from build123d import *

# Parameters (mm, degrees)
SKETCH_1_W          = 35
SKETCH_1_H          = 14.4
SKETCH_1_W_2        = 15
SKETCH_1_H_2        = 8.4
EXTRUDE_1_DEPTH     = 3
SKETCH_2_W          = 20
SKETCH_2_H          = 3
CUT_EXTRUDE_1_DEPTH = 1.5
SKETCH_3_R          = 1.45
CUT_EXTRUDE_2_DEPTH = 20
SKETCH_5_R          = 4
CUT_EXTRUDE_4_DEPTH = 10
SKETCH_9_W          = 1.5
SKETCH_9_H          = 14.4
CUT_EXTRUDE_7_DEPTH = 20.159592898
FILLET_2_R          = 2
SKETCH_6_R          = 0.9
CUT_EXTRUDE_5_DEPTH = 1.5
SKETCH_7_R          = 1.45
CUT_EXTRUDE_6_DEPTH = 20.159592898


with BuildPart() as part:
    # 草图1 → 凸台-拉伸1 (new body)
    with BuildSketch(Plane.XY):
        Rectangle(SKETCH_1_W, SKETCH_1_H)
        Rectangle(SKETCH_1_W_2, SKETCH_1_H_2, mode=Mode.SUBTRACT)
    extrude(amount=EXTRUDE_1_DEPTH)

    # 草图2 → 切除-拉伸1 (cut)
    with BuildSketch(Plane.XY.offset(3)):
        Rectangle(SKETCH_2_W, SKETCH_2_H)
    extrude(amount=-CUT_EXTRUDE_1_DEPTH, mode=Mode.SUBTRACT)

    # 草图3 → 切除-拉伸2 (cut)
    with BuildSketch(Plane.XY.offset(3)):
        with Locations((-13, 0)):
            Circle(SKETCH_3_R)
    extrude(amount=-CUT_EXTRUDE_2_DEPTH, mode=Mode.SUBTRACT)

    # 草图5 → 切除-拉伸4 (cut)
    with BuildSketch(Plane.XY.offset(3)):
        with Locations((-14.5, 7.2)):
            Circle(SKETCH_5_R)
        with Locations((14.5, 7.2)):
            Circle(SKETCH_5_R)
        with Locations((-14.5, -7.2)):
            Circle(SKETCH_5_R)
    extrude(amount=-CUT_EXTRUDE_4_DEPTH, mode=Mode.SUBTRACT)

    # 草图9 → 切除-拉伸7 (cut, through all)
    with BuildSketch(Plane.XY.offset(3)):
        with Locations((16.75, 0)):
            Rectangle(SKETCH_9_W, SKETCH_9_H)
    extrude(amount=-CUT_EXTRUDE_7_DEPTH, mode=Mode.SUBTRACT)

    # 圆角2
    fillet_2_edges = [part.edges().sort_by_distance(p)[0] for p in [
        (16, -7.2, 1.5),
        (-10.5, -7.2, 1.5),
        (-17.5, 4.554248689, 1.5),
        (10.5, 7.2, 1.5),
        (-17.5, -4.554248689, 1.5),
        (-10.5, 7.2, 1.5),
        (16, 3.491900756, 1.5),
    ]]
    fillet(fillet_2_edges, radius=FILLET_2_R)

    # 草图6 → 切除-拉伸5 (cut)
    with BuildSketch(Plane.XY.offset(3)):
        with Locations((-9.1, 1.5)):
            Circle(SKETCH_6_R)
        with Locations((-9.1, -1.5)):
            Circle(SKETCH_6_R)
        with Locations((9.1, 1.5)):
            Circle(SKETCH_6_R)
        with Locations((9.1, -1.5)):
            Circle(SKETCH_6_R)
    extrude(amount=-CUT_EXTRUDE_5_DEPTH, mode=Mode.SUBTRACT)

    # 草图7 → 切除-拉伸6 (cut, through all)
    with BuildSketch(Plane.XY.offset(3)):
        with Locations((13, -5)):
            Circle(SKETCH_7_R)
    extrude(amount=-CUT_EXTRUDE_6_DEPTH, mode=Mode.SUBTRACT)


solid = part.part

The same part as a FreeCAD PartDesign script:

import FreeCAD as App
import Part
import Sketcher


def edges_at(feature, points):
    """Names of the edges that pass closest to the given points."""
    edges = feature.Shape.Edges
    near = lambda p: min(range(len(edges)), key=lambda i: edges[i].distToShape(Part.Vertex(*p))[0])
    return sorted({f"Edge{near(p) + 1}" for p in points})

doc = App.newDocument("Part")
body = doc.addObject("PartDesign::Body", "Body")

# Sketch on XY plane
sketch1 = body.newObject("Sketcher::SketchObject", "Sketch")
sketch1.AttachmentSupport = (doc.getObject("XY_Plane"), [""])
sketch1.MapMode = "FlatFace"
sketch1.addGeometry(Part.LineSegment(App.Vector(-17.5, 7.2, 0), App.Vector(-17.5, -7.2, 0)), False)
sketch1.addGeometry(Part.LineSegment(App.Vector(-17.5, -7.2, 0), App.Vector(17.5, -7.2, 0)), False)
sketch1.addGeometry(Part.LineSegment(App.Vector(17.5, -7.2, 0), App.Vector(17.5, 7.2, 0)), False)
sketch1.addGeometry(Part.LineSegment(App.Vector(17.5, 7.2, 0), App.Vector(-17.5, 7.2, 0)), False)
sketch1.addGeometry(Part.LineSegment(App.Vector(7.5, -4.2, 0), App.Vector(-7.5, -4.2, 0)), False)
sketch1.addGeometry(Part.LineSegment(App.Vector(-7.5, -4.2, 0), App.Vector(-7.5, 4.2, 0)), False)
sketch1.addGeometry(Part.LineSegment(App.Vector(-7.5, 4.2, 0), App.Vector(7.5, 4.2, 0)), False)
sketch1.addGeometry(Part.LineSegment(App.Vector(7.5, 4.2, 0), App.Vector(7.5, -4.2, 0)), False)
sketch1.addConstraint(Sketcher.Constraint("Coincident", 0, 2, 1, 1))
sketch1.addConstraint(Sketcher.Constraint("Coincident", 1, 2, 2, 1))
sketch1.addConstraint(Sketcher.Constraint("Coincident", 2, 2, 3, 1))
sketch1.addConstraint(Sketcher.Constraint("Coincident", 3, 2, 0, 1))
sketch1.addConstraint(Sketcher.Constraint("Coincident", 4, 2, 5, 1))
sketch1.addConstraint(Sketcher.Constraint("Coincident", 5, 2, 6, 1))
sketch1.addConstraint(Sketcher.Constraint("Coincident", 6, 2, 7, 1))
sketch1.addConstraint(Sketcher.Constraint("Coincident", 7, 2, 4, 1))
sketch1.addConstraint(Sketcher.Constraint("Vertical", 0))
sketch1.addConstraint(Sketcher.Constraint("Horizontal", 1))
sketch1.addConstraint(Sketcher.Constraint("Vertical", 2))
sketch1.addConstraint(Sketcher.Constraint("Horizontal", 3))
sketch1.addConstraint(Sketcher.Constraint("Horizontal", 4))
sketch1.addConstraint(Sketcher.Constraint("Vertical", 5))
sketch1.addConstraint(Sketcher.Constraint("Horizontal", 6))
sketch1.addConstraint(Sketcher.Constraint("Vertical", 7))
sketch1.addConstraint(Sketcher.Constraint("Symmetric", 0, 2, 2, 2, -1, 1))
sketch1.addConstraint(Sketcher.Constraint("Symmetric", 4, 2, 6, 2, -1, 1))
sketch1.addConstraint(Sketcher.Constraint("DistanceX", 1, 1, 1, 2, 35.0))
sketch1.addConstraint(Sketcher.Constraint("DistanceX", 4, 2, 4, 1, 15.0))
sketch1.addConstraint(Sketcher.Constraint("DistanceY", 0, 2, 0, 1, 14.4))
sketch1.addConstraint(Sketcher.Constraint("DistanceY", 5, 1, 5, 2, 8.4))
pad1 = body.newObject("PartDesign::Pad", "Pad")
pad1.Profile = sketch1
pad1.Length = 3

# Sketch on XY plane
sketch2 = body.newObject("Sketcher::SketchObject", "Sketch001")
sketch2.AttachmentSupport = (doc.getObject("XY_Plane"), [""])
sketch2.MapMode = "FlatFace"
sketch2.AttachmentOffset = App.Placement(App.Vector(0, 0, 3), App.Rotation())
sketch2.addGeometry(Part.LineSegment(App.Vector(-10, 1.5, 0), App.Vector(-10, -1.5, 0)), False)
sketch2.addGeometry(Part.LineSegment(App.Vector(-10, -1.5, 0), App.Vector(10, -1.5, 0)), False)
sketch2.addGeometry(Part.LineSegment(App.Vector(10, -1.5, 0), App.Vector(10, 1.5, 0)), False)
sketch2.addGeometry(Part.LineSegment(App.Vector(10, 1.5, 0), App.Vector(-10, 1.5, 0)), False)
sketch2.addConstraint(Sketcher.Constraint("Coincident", 0, 2, 1, 1))
sketch2.addConstraint(Sketcher.Constraint("Coincident", 1, 2, 2, 1))
sketch2.addConstraint(Sketcher.Constraint("Coincident", 2, 2, 3, 1))
sketch2.addConstraint(Sketcher.Constraint("Coincident", 3, 2, 0, 1))
sketch2.addConstraint(Sketcher.Constraint("Vertical", 0))
sketch2.addConstraint(Sketcher.Constraint("Horizontal", 1))
sketch2.addConstraint(Sketcher.Constraint("Vertical", 2))
sketch2.addConstraint(Sketcher.Constraint("Horizontal", 3))
sketch2.addConstraint(Sketcher.Constraint("Symmetric", 0, 2, 2, 2, -1, 1))
sketch2.addConstraint(Sketcher.Constraint("DistanceX", 1, 1, 1, 2, 20.0))
sketch2.addConstraint(Sketcher.Constraint("DistanceY", 0, 2, 0, 1, 3.0))
pocket1 = body.newObject("PartDesign::Pocket", "Pocket")
pocket1.Profile = sketch2
pocket1.Length = 1.5

# Sketch on XY plane
sketch3 = body.newObject("Sketcher::SketchObject", "Sketch002")
sketch3.AttachmentSupport = (doc.getObject("XY_Plane"), [""])
sketch3.MapMode = "FlatFace"
sketch3.AttachmentOffset = App.Placement(App.Vector(0, 0, 3), App.Rotation())
sketch3.addGeometry(Part.Circle(App.Vector(-13, 0, 0), App.Vector(0, 0, 1), 1.45), False)
sketch3.addConstraint(Sketcher.Constraint("PointOnObject", 0, 3, -1))
sketch3.addConstraint(Sketcher.Constraint("Diameter", 0, 2.9))
sketch3.addConstraint(Sketcher.Constraint("DistanceX", 0, 3, -1, 1, 13.0))
pocket2 = body.newObject("PartDesign::Pocket", "Pocket001")
pocket2.Profile = sketch3
pocket2.Length = 20

# Sketch on XY plane
sketch4 = body.newObject("Sketcher::SketchObject", "Sketch003")
sketch4.AttachmentSupport = (doc.getObject("XY_Plane"), [""])
sketch4.MapMode = "FlatFace"
sketch4.AttachmentOffset = App.Placement(App.Vector(0, 0, 3), App.Rotation())
sketch4.addGeometry(Part.Circle(App.Vector(-14.5, 7.2, 0), App.Vector(0, 0, 1), 4), False)
sketch4.addGeometry(Part.Circle(App.Vector(14.5, 7.2, 0), App.Vector(0, 0, 1), 4), False)
sketch4.addGeometry(Part.Circle(App.Vector(-14.5, -7.2, 0), App.Vector(0, 0, 1), 4), False)
sketch4.addConstraint(Sketcher.Constraint("Equal", 0, 1))
sketch4.addConstraint(Sketcher.Constraint("Equal", 1, 2))
sketch4.addConstraint(Sketcher.Constraint("Symmetric", 1, 3, 2, 3, -1, 1))
sketch4.addConstraint(Sketcher.Constraint("Symmetric", 0, 3, 1, 3, -2))
sketch4.addConstraint(Sketcher.Constraint("Diameter", 0, 8.0))
sketch4.addConstraint(Sketcher.Constraint("DistanceX", 0, 3, 1, 3, 29.0))
sketch4.addConstraint(Sketcher.Constraint("DistanceY", -1, 1, 0, 3, 7.2))
pocket3 = body.newObject("PartDesign::Pocket", "Pocket002")
pocket3.Profile = sketch4
pocket3.Length = 10

# Sketch on XY plane
sketch5 = body.newObject("Sketcher::SketchObject", "Sketch004")
sketch5.AttachmentSupport = (doc.getObject("XY_Plane"), [""])
sketch5.MapMode = "FlatFace"
sketch5.AttachmentOffset = App.Placement(App.Vector(0, 0, 3), App.Rotation())
sketch5.addGeometry(Part.LineSegment(App.Vector(16, 7.2, 0), App.Vector(16, -7.2, 0)), False)
sketch5.addGeometry(Part.LineSegment(App.Vector(16, -7.2, 0), App.Vector(17.5, -7.2, 0)), False)
sketch5.addGeometry(Part.LineSegment(App.Vector(17.5, -7.2, 0), App.Vector(17.5, 7.2, 0)), False)
sketch5.addGeometry(Part.LineSegment(App.Vector(17.5, 7.2, 0), App.Vector(16, 7.2, 0)), False)
sketch5.addConstraint(Sketcher.Constraint("Coincident", 0, 2, 1, 1))
sketch5.addConstraint(Sketcher.Constraint("Coincident", 1, 2, 2, 1))
sketch5.addConstraint(Sketcher.Constraint("Coincident", 2, 2, 3, 1))
sketch5.addConstraint(Sketcher.Constraint("Coincident", 3, 2, 0, 1))
sketch5.addConstraint(Sketcher.Constraint("Vertical", 0))
sketch5.addConstraint(Sketcher.Constraint("Horizontal", 1))
sketch5.addConstraint(Sketcher.Constraint("Vertical", 2))
sketch5.addConstraint(Sketcher.Constraint("Horizontal", 3))
sketch5.addConstraint(Sketcher.Constraint("DistanceX", 1, 1, 1, 2, 1.5))
sketch5.addConstraint(Sketcher.Constraint("DistanceY", 0, 2, 0, 1, 14.4))
sketch5.addConstraint(Sketcher.Constraint("DistanceX", -1, 1, 0, 2, 16.0))
sketch5.addConstraint(Sketcher.Constraint("DistanceY", 0, 2, -1, 1, 7.2))
pocket4 = body.newObject("PartDesign::Pocket", "Pocket003")
pocket4.Profile = sketch5
pocket4.Type = "ThroughAll"
doc.recompute()

fillet = body.newObject("PartDesign::Fillet", "Fillet")
fillet.Base = (pocket4, edges_at(pocket4, [
    (16, -7.2, 1.5),
    (-10.5, -7.2, 1.5),
    (-17.5, 4.554, 1.5),
    (10.5, 7.2, 1.5),
    (-17.5, -4.554, 1.5),
    (-10.5, 7.2, 1.5),
    (16, 3.492, 1.5),
]))
fillet.Radius = 2

# Sketch on XY plane
sketch6 = body.newObject("Sketcher::SketchObject", "Sketch005")
sketch6.AttachmentSupport = (doc.getObject("XY_Plane"), [""])
sketch6.MapMode = "FlatFace"
sketch6.AttachmentOffset = App.Placement(App.Vector(0, 0, 3), App.Rotation())
sketch6.addGeometry(Part.Circle(App.Vector(-9.1, 1.5, 0), App.Vector(0, 0, 1), 0.9), False)
sketch6.addGeometry(Part.Circle(App.Vector(-9.1, -1.5, 0), App.Vector(0, 0, 1), 0.9), False)
sketch6.addGeometry(Part.Circle(App.Vector(9.1, 1.5, 0), App.Vector(0, 0, 1), 0.9), False)
sketch6.addGeometry(Part.Circle(App.Vector(9.1, -1.5, 0), App.Vector(0, 0, 1), 0.9), False)
sketch6.addConstraint(Sketcher.Constraint("Equal", 0, 1))
sketch6.addConstraint(Sketcher.Constraint("Equal", 1, 2))
sketch6.addConstraint(Sketcher.Constraint("Equal", 2, 3))
sketch6.addConstraint(Sketcher.Constraint("Symmetric", 1, 3, 2, 3, -1, 1))
sketch6.addConstraint(Sketcher.Constraint("Symmetric", 0, 3, 3, 3, -1, 1))
sketch6.addConstraint(Sketcher.Constraint("Symmetric", 0, 3, 2, 3, -2))
sketch6.addConstraint(Sketcher.Constraint("Diameter", 0, 1.8))
sketch6.addConstraint(Sketcher.Constraint("DistanceY", 1, 3, 0, 3, 3.0))
sketch6.addConstraint(Sketcher.Constraint("DistanceX", 0, 3, -1, 1, 9.1))
pocket5 = body.newObject("PartDesign::Pocket", "Pocket004")
pocket5.Profile = sketch6
pocket5.Length = 1.5

# Sketch on XY plane
sketch7 = body.newObject("Sketcher::SketchObject", "Sketch006")
sketch7.AttachmentSupport = (doc.getObject("XY_Plane"), [""])
sketch7.MapMode = "FlatFace"
sketch7.AttachmentOffset = App.Placement(App.Vector(0, 0, 3), App.Rotation())
sketch7.addGeometry(Part.Circle(App.Vector(13, -5, 0), App.Vector(0, 0, 1), 1.45), False)
sketch7.addConstraint(Sketcher.Constraint("Diameter", 0, 2.9))
sketch7.addConstraint(Sketcher.Constraint("DistanceX", -1, 1, 0, 3, 13.0))
sketch7.addConstraint(Sketcher.Constraint("DistanceY", 0, 3, -1, 1, 5.0))
pocket6 = body.newObject("PartDesign::Pocket", "Pocket005")
pocket6.Profile = sketch7
pocket6.Type = "ThroughAll"

doc.recompute()
